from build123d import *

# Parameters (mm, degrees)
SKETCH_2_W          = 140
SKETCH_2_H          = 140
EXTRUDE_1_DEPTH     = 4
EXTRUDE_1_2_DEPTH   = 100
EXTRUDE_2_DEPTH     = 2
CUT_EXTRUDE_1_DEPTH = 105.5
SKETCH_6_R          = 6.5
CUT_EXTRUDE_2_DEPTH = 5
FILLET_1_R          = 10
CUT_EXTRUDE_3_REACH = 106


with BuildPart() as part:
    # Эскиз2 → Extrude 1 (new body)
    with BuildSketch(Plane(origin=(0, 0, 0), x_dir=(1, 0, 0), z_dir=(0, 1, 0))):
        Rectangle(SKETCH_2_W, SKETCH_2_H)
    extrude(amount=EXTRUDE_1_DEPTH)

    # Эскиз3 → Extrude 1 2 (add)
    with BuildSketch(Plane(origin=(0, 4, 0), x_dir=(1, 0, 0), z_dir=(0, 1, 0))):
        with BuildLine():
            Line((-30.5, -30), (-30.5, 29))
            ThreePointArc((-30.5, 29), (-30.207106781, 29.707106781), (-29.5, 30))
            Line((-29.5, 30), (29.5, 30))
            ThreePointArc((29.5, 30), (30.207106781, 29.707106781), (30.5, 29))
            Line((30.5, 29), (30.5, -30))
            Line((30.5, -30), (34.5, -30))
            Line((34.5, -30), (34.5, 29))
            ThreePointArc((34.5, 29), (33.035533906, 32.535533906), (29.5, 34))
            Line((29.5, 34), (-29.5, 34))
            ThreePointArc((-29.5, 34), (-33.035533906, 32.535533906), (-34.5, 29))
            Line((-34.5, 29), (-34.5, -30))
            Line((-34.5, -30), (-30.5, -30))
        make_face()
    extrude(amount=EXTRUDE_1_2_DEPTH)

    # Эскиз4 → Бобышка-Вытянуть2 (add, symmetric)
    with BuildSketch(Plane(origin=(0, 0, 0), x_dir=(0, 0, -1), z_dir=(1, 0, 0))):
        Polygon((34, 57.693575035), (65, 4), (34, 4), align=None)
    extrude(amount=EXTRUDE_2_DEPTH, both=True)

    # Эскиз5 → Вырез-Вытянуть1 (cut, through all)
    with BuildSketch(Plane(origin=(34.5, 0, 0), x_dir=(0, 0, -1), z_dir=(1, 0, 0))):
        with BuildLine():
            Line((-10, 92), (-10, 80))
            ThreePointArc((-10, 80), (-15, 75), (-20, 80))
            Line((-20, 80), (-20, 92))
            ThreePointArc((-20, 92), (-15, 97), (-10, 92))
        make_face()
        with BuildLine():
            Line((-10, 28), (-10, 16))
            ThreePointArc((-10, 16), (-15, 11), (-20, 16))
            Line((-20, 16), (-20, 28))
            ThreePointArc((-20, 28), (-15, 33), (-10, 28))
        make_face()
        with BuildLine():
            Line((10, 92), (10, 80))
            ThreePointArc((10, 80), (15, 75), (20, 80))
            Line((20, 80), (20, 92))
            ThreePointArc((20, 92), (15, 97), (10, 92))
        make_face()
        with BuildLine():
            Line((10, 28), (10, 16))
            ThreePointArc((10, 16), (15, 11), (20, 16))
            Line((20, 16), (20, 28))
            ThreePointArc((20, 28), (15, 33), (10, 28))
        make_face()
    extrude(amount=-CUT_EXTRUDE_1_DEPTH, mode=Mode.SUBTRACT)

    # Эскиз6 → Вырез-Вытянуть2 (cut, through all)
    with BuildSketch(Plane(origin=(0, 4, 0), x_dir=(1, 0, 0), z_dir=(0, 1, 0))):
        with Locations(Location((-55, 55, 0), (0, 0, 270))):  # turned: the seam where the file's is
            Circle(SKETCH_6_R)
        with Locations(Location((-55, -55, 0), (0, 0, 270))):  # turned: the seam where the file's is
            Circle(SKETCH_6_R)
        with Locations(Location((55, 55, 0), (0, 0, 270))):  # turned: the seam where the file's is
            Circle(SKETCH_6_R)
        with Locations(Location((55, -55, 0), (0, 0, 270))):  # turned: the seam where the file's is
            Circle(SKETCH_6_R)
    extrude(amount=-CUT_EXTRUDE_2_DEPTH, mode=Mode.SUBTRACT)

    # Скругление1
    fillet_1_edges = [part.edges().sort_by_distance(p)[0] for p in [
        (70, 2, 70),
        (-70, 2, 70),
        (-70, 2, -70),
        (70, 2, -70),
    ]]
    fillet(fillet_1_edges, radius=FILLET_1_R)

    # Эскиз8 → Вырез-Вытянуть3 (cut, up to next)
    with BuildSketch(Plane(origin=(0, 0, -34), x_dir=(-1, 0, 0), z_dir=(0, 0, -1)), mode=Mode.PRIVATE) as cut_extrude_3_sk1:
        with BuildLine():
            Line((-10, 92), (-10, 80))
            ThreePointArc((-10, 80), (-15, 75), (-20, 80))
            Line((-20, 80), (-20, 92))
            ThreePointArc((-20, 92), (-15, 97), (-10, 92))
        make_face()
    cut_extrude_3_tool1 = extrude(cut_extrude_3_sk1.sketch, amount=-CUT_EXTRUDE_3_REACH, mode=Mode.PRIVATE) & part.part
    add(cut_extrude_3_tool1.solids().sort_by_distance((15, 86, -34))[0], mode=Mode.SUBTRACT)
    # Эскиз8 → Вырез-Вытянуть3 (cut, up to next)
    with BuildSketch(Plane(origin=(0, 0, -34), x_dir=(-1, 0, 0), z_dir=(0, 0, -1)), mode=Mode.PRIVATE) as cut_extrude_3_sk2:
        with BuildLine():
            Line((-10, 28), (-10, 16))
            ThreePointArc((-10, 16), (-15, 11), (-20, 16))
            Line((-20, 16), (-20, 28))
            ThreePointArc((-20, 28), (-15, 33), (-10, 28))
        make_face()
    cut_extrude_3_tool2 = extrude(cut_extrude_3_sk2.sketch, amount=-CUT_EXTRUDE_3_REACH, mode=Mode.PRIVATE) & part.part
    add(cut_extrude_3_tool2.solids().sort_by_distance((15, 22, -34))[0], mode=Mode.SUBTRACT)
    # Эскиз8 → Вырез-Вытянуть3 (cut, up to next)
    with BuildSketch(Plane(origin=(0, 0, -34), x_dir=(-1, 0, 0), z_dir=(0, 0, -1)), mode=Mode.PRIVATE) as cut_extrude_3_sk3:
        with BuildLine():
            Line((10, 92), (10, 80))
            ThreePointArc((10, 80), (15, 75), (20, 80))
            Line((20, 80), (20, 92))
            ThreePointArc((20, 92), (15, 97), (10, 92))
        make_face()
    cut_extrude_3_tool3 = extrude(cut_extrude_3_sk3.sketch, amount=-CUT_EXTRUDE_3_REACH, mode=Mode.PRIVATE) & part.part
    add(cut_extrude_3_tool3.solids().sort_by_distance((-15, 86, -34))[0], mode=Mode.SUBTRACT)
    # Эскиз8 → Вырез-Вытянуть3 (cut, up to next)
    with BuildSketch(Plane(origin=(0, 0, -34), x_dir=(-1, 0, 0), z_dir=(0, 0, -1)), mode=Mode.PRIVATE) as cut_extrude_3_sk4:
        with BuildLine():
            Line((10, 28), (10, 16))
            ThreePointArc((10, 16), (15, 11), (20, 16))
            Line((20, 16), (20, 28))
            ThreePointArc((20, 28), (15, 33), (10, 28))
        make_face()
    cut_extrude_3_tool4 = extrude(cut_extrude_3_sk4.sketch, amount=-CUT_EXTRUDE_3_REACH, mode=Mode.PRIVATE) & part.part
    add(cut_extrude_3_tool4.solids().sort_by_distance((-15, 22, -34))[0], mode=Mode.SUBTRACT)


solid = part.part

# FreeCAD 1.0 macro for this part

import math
import FreeCAD as App
import Part
import Sketcher
Q = App.Units.Quantity


def edges_at(feature, points):
    """Names of the edges that pass closest to the given points."""
    edges = feature.Shape.Edges
    near = lambda p: min(range(len(edges)), key=lambda i: edges[i].distToShape(Part.Vertex(*p))[0])
    return sorted({f"Edge{near(p) + 1}" for p in points})

doc = App.newDocument("Part")
params = doc.addObject("Spreadsheet::Sheet", "Params")
for row, (alias, value) in enumerate([
    ("sketch1_width", "140 mm"),
    ("pad1_length", "4 mm"),
    ("sketch2_radius", "1 mm"),
    ("sketch2_radius2", "5 mm"),
    ("sketch2_width", "59 mm"),
    ("pad2_length", "100 mm"),
    ("sketch3_height", "31 mm"),
    ("pad3_length", "4 mm"),
    ("sketch4_radius", "5 mm"),
    ("sketch4_width", "12 mm"),
    ("sketch5_diameter", "13 mm"),
    ("fillet_radius", "10 mm"),
    ("sketch6_radius", "5 mm"),
    ("sketch6_height", "12 mm"),
    ("sketch7_radius", "5 mm"),
    ("sketch7_height", "12 mm"),
    ("sketch8_radius", "5 mm"),
    ("sketch8_height", "12 mm"),
    ("sketch9_radius", "5 mm"),
    ("sketch9_height", "12 mm"),
], start=1):
    params.set(f"A{row}", alias)
    params.set(f"B{row}", "=" + value)
    params.setAlias(f"B{row}", alias)

body = doc.addObject("PartDesign::Body", "Body")

sketch1 = body.newObject("Sketcher::SketchObject", "Sketch")
sketch1.AttachmentSupport = (doc.getObject("XZ_Plane"), [""])
sketch1.MapMode = "FlatFace"
sketch1.addGeometry(Part.LineSegment(App.Vector(-70, -70, 0), App.Vector(-70, 70, 0)), False)
sketch1.addGeometry(Part.LineSegment(App.Vector(-70, 70, 0), App.Vector(70, 70, 0)), False)
sketch1.addGeometry(Part.LineSegment(App.Vector(70, 70, 0), App.Vector(70, -70, 0)), False)
sketch1.addGeometry(Part.LineSegment(App.Vector(70, -70, 0), App.Vector(-70, -70, 0)), False)
sketch1.addConstraint(Sketcher.Constraint("Coincident", 0, 2, 1, 1))
sketch1.addConstraint(Sketcher.Constraint("Coincident", 1, 2, 2, 1))
sketch1.addConstraint(Sketcher.Constraint("Coincident", 2, 2, 3, 1))
sketch1.addConstraint(Sketcher.Constraint("Coincident", 3, 2, 0, 1))
sketch1.addConstraint(Sketcher.Constraint("Vertical", 0))
sketch1.addConstraint(Sketcher.Constraint("Horizontal", 1))
sketch1.addConstraint(Sketcher.Constraint("Vertical", 2))
sketch1.addConstraint(Sketcher.Constraint("Horizontal", 3))
sketch1.addConstraint(Sketcher.Constraint("Symmetric", 0, 2, 2, 2, -1, 1))
sketch1.addConstraint(Sketcher.Constraint("Equal", 3, 0))
sketch1.addConstraint(Sketcher.Constraint("DistanceX", 1, 1, 1, 2, 140.0))
sketch1.setExpression("Constraints[10]", "Params.sketch1_width")
pad1 = body.newObject("PartDesign::Pad", "Pad")
pad1.Profile = sketch1
pad1.setExpression("Length", "Params.pad1_length")
pad1.Reversed = True

sketch2 = body.newObject("Sketcher::SketchObject", "Sketch001")
sketch2.AttachmentSupport = (doc.getObject("XZ_Plane"), [""])
sketch2.MapMode = "FlatFace"
sketch2.AttachmentOffset = App.Placement(App.Vector(0, 0, -4), App.Rotation())
sketch2.addGeometry(Part.LineSegment(App.Vector(-30.5, 30, 0), App.Vector(-30.5, -29, 0)), False)
sketch2.addGeometry(Part.ArcOfCircle(Part.Circle(App.Vector(-29.5, -29, 0), App.Vector(0, 0, 1), 1), math.radians(-180), math.radians(-90)), False)
sketch2.addGeometry(Part.LineSegment(App.Vector(-29.5, -30, 0), App.Vector(29.5, -30, 0)), False)
sketch2.addGeometry(Part.ArcOfCircle(Part.Circle(App.Vector(29.5, -29, 0), App.Vector(0, 0, 1), 1), math.radians(-90), math.radians(0)), False)
sketch2.addGeometry(Part.LineSegment(App.Vector(30.5, -29, 0), App.Vector(30.5, 30, 0)), False)
sketch2.addGeometry(Part.LineSegment(App.Vector(30.5, 30, 0), App.Vector(34.5, 30, 0)), False)
sketch2.addGeometry(Part.LineSegment(App.Vector(34.5, 30, 0), App.Vector(34.5, -29, 0)), False)
sketch2.addGeometry(Part.ArcOfCircle(Part.Circle(App.Vector(29.5, -29, 0), App.Vector(0, 0, 1), 5), math.radians(-90), math.radians(0)), False)
sketch2.addGeometry(Part.LineSegment(App.Vector(29.5, -34, 0), App.Vector(-29.5, -34, 0)), False)
sketch2.addGeometry(Part.ArcOfCircle(Part.Circle(App.Vector(-29.5, -29, 0), App.Vector(0, 0, 1), 5), math.radians(180), math.radians(270)), False)
sketch2.addGeometry(Part.LineSegment(App.Vector(-34.5, -29, 0), App.Vector(-34.5, 30, 0)), False)
sketch2.addGeometry(Part.LineSegment(App.Vector(-34.5, 30, 0), App.Vector(-30.5, 30, 0)), False)
sketch2.addConstraint(Sketcher.Constraint("Tangent", 0, 2, 1, 1))
sketch2.addConstraint(Sketcher.Constraint("Tangent", 1, 2, 2, 1))
sketch2.addConstraint(Sketcher.Constraint("Tangent", 2, 2, 3, 1))
sketch2.addConstraint(Sketcher.Constraint("Tangent", 3, 2, 4, 1))
sketch2.addConstraint(Sketcher.Constraint("Coincident", 4, 2, 5, 1))
sketch2.addConstraint(Sketcher.Constraint("Coincident", 5, 2, 6, 1))
sketch2.addConstraint(Sketcher.Constraint("Tangent", 6, 2, 7, 2))
sketch2.addConstraint(Sketcher.Constraint("Tangent", 7, 1, 8, 1))
sketch2.addConstraint(Sketcher.Constraint("Tangent", 8, 2, 9, 2))
sketch2.addConstraint(Sketcher.Constraint("Tangent", 9, 1, 10, 1))
sketch2.addConstraint(Sketcher.Constraint("Coincident", 10, 2, 11, 1))
sketch2.addConstraint(Sketcher.Constraint("Coincident", 11, 2, 0, 1))
sketch2.addConstraint(Sketcher.Constraint("Vertical", 0))
sketch2.addConstraint(Sketcher.Constraint("Horizontal", 2))
sketch2.addConstraint(Sketcher.Constraint("Vertical", 4))
sketch2.addConstraint(Sketcher.Constraint("Horizontal", 5))
sketch2.addConstraint(Sketcher.Constraint("Vertical", 6))
sketch2.addConstraint(Sketcher.Constraint("Horizontal", 8))
sketch2.addConstraint(Sketcher.Constraint("Vertical", 10))
sketch2.addConstraint(Sketcher.Constraint("Horizontal", 11))
sketch2.addConstraint(Sketcher.Constraint("Coincident", 7, 3, 3, 3))
sketch2.addConstraint(Sketcher.Constraint("Coincident", 9, 3, 1, 3))
sketch2.addConstraint(Sketcher.Constraint("Equal", 1, 3))
sketch2.addConstraint(Sketcher.Constraint("Symmetric", 5, 2, 10, 2, -2))
sketch2.addConstraint(Sketcher.Constraint("Equal", 8, 0))
sketch2.addConstraint(Sketcher.Constraint("Radius", 1, 1.0))
sketch2.addConstraint(Sketcher.Constraint("Radius", 7, 5.0))
sketch2.addConstraint(Sketcher.Constraint("DistanceX", 2, 1, 2, 2, 59.0))
sketch2.addConstraint(Sketcher.Constraint("DistanceY", 1, 3, -1, 1, 29.0))
sketch2.setExpression("Constraints[25]", "Params.sketch2_radius")
sketch2.setExpression("Constraints[26]", "Params.sketch2_radius2")
sketch2.setExpression("Constraints[27]", "Params.sketch2_width")
pad2 = body.newObject("PartDesign::Pad", "Pad001")
pad2.Profile = sketch2
pad2.setExpression("Length", "Params.pad2_length")
pad2.Reversed = True

sketch3 = body.newObject("Sketcher::SketchObject", "Sketch002")
sketch3.AttachmentSupport = (doc.getObject("YZ_Plane"), [""])
sketch3.MapMode = "FlatFace"
sketch3.addGeometry(Part.LineSegment(App.Vector(4, -65, 0), App.Vector(58, -34, 0)), False)
sketch3.addGeometry(Part.LineSegment(App.Vector(58, -34, 0), App.Vector(4, -34, 0)), False)
sketch3.addGeometry(Part.LineSegment(App.Vector(4, -34, 0), App.Vector(4, -65, 0)), False)
sketch3.addConstraint(Sketcher.Constraint("Coincident", 0, 2, 1, 1))
sketch3.addConstraint(Sketcher.Constraint("Coincident", 1, 2, 2, 1))
sketch3.addConstraint(Sketcher.Constraint("Coincident", 2, 2, 0, 1))
sketch3.addConstraint(Sketcher.Constraint("Horizontal", 1))
sketch3.addConstraint(Sketcher.Constraint("Vertical", 2))
sketch3.addConstraint(Sketcher.Constraint("DistanceY", 2, 2, 2, 1, 31.0))
sketch3.addConstraint(Sketcher.Constraint("Angle", 0, Q("30 deg")))
sketch3.addConstraint(Sketcher.Constraint("DistanceY", 0, 2, -1, 1, 34.0))
sketch3.addConstraint(Sketcher.Constraint("DistanceX", -1, 1, 1, 2, 4.0))
sketch3.setExpression("Constraints[5]", "Params.sketch3_height")
pad3 = body.newObject("PartDesign::Pad", "Pad002")
pad3.Profile = sketch3
pad3.setExpression("Length", "Params.pad3_length")
pad3.Midplane = True

sketch4 = body.newObject("Sketcher::SketchObject", "Sketch003")
sketch4.AttachmentSupport = (doc.getObject("YZ_Plane"), [""])
sketch4.MapMode = "FlatFace"
sketch4.AttachmentOffset = App.Placement(App.Vector(0, 0, 34.5), App.Rotation())
sketch4.addGeometry(Part.LineSegment(App.Vector(80, 10, 0), App.Vector(92, 10, 0)), False)
sketch4.addGeometry(Part.ArcOfCircle(Part.Circle(App.Vector(92, 15, 0), App.Vector(0, 0, 1), 5), math.radians(-90), math.radians(90)), False)
sketch4.addGeometry(Part.LineSegment(App.Vector(92, 20, 0), App.Vector(80, 20, 0)), False)
sketch4.addGeometry(Part.ArcOfCircle(Part.Circle(App.Vector(80, 15, 0), App.Vector(0, 0, 1), 5), math.radians(90), math.radians(270)), False)
sketch4.addGeometry(Part.LineSegment(App.Vector(16, 10, 0), App.Vector(28, 10, 0)), False)
sketch4.addGeometry(Part.ArcOfCircle(Part.Circle(App.Vector(28, 15, 0), App.Vector(0, 0, 1), 5), math.radians(-90), math.radians(90)), False)
sketch4.addGeometry(Part.LineSegment(App.Vector(28, 20, 0), App.Vector(16, 20, 0)), False)
sketch4.addGeometry(Part.ArcOfCircle(Part.Circle(App.Vector(16, 15, 0), App.Vector(0, 0, 1), 5), math.radians(90), math.radians(270)), False)
sketch4.addGeometry(Part.LineSegment(App.Vector(92, -10, 0), App.Vector(80, -10, 0)), False)
sketch4.addGeometry(Part.ArcOfCircle(Part.Circle(App.Vector(80, -15, 0), App.Vector(0, 0, 1), 5), math.radians(90), math.radians(270)), False)
sketch4.addGeometry(Part.LineSegment(App.Vector(80, -20, 0), App.Vector(92, -20, 0)), False)
sketch4.addGeometry(Part.ArcOfCircle(Part.Circle(App.Vector(92, -15, 0), App.Vector(0, 0, 1), 5), math.radians(-90), math.radians(90)), False)
sketch4.addGeometry(Part.LineSegment(App.Vector(28, -10, 0), App.Vector(16, -10, 0)), False)
sketch4.addGeometry(Part.ArcOfCircle(Part.Circle(App.Vector(16, -15, 0), App.Vector(0, 0, 1), 5), math.radians(90), math.radians(270)), False)
sketch4.addGeometry(Part.LineSegment(App.Vector(16, -20, 0), App.Vector(28, -20, 0)), False)
sketch4.addGeometry(Part.ArcOfCircle(Part.Circle(App.Vector(28, -15, 0), App.Vector(0, 0, 1), 5), math.radians(-90), math.radians(90)), False)
sketch4.addConstraint(Sketcher.Constraint("Tangent", 0, 2, 1, 1))
sketch4.addConstraint(Sketcher.Constraint("Tangent", 1, 2, 2, 1))
sketch4.addConstraint(Sketcher.Constraint("Tangent", 2, 2, 3, 1))
sketch4.addConstraint(Sketcher.Constraint("Tangent", 3, 2, 0, 1))
sketch4.addConstraint(Sketcher.Constraint("Tangent", 4, 2, 5, 1))
sketch4.addConstraint(Sketcher.Constraint("Tangent", 5, 2, 6, 1))
sketch4.addConstraint(Sketcher.Constraint("Tangent", 6, 2, 7, 1))
sketch4.addConstraint(Sketcher.Constraint("Tangent", 7, 2, 4, 1))
sketch4.addConstraint(Sketcher.Constraint("Tangent", 8, 2, 9, 1))
sketch4.addConstraint(Sketcher.Constraint("Tangent", 9, 2, 10, 1))
sketch4.addConstraint(Sketcher.Constraint("Tangent", 10, 2, 11, 1))
sketch4.addConstraint(Sketcher.Constraint("Tangent", 11, 2, 8, 1))
sketch4.addConstraint(Sketcher.Constraint("Tangent", 12, 2, 13, 1))
sketch4.addConstraint(Sketcher.Constraint("Tangent", 13, 2, 14, 1))
sketch4.addConstraint(Sketcher.Constraint("Tangent", 14, 2, 15, 1))
sketch4.addConstraint(Sketcher.Constraint("Tangent", 15, 2, 12, 1))
sketch4.addConstraint(Sketcher.Constraint("Horizontal", 0))
sketch4.addConstraint(Sketcher.Constraint("Horizontal", 2))
sketch4.addConstraint(Sketcher.Constraint("Horizontal", 4))
sketch4.addConstraint(Sketcher.Constraint("Horizontal", 6))
sketch4.addConstraint(Sketcher.Constraint("Horizontal", 8))
sketch4.addConstraint(Sketcher.Constraint("Horizontal", 10))
sketch4.addConstraint(Sketcher.Constraint("Horizontal", 12))
sketch4.addConstraint(Sketcher.Constraint("Horizontal", 14))
sketch4.addConstraint(Sketcher.Constraint("Equal", 3, 5))
sketch4.addConstraint(Sketcher.Constraint("Equal", 7, 9))
sketch4.addConstraint(Sketcher.Constraint("Equal", 11, 13))
sketch4.addConstraint(Sketcher.Constraint("Symmetric", 3, 3, 9, 3, -1))
sketch4.addConstraint(Sketcher.Constraint("Symmetric", 7, 3, 13, 3, -1))
sketch4.addConstraint(Sketcher.Constraint("Horizontal", 3, 3, 5, 3))
sketch4.addConstraint(Sketcher.Constraint("Vertical", 1, 3, 11, 3))
sketch4.addConstraint(Sketcher.Constraint("Vertical", 5, 3, 15, 3))
sketch4.addConstraint(Sketcher.Constraint("Equal", 2, 4))
sketch4.addConstraint(Sketcher.Constraint("Radius", 1, 5.0))
sketch4.addConstraint(Sketcher.Constraint("DistanceX", 0, 1, 0, 2, 12.0))
sketch4.addConstraint(Sketcher.Constraint("DistanceX", -1, 1, 1, 3, 92.0))
sketch4.addConstraint(Sketcher.Constraint("DistanceY", -1, 1, 1, 3, 15.0))
sketch4.addConstraint(Sketcher.Constraint("DistanceX", -1, 1, 5, 3, 28.0))
sketch4.setExpression("Constraints[33]", "Params.sketch4_radius")
sketch4.setExpression("Constraints[34]", "Params.sketch4_width")
pocket1 = body.newObject("PartDesign::Pocket", "Pocket")
pocket1.Profile = sketch4
pocket1.Type = "ThroughAll"

sketch5 = body.newObject("Sketcher::SketchObject", "Sketch004")
sketch5.AttachmentSupport = (doc.getObject("XZ_Plane"), [""])
sketch5.MapMode = "FlatFace"
sketch5.AttachmentOffset = App.Placement(App.Vector(0, 0, -4), App.Rotation())
sketch5.addGeometry(Part.Circle(App.Vector(-55, -55, 0), App.Vector(0, 0, 1), 6), False)
sketch5.addGeometry(Part.Circle(App.Vector(-55, 55, 0), App.Vector(0, 0, 1), 6), False)
sketch5.addGeometry(Part.Circle(App.Vector(55, -55, 0), App.Vector(0, 0, 1), 6), False)
sketch5.addGeometry(Part.Circle(App.Vector(55, 55, 0), App.Vector(0, 0, 1), 6), False)
sketch5.addConstraint(Sketcher.Constraint("Equal", 0, 1))
sketch5.addConstraint(Sketcher.Constraint("Equal", 1, 2))
sketch5.addConstraint(Sketcher.Constraint("Equal", 2, 3))
sketch5.addConstraint(Sketcher.Constraint("Symmetric", 1, 3, 2, 3, -1, 1))
sketch5.addConstraint(Sketcher.Constraint("Symmetric", 0, 3, 3, 3, -1, 1))
sketch5.addConstraint(Sketcher.Constraint("Symmetric", 0, 3, 2, 3, -2))
sketch5.addConstraint(Sketcher.Constraint("Diameter", 0, 13.0))
sketch5.addConstraint(Sketcher.Constraint("DistanceX", 0, 3, -1, 1, 55.0))
sketch5.addConstraint(Sketcher.Constraint("DistanceY", 0, 3, -1, 1, 55.0))
sketch5.setExpression("Constraints[6]", "Params.sketch5_diameter")
pocket2 = body.newObject("PartDesign::Pocket", "Pocket001")
pocket2.Profile = sketch5
pocket2.Type = "ThroughAll"
pocket2.Reversed = True
doc.recompute()

fillet = body.newObject("PartDesign::Fillet", "Fillet")
fillet.Base = (pocket2, edges_at(pocket2, [
    (70, 2, 70),
    (-70, 2, 70),
    (-70, 2, -70),
    (70, 2, -70),
]))
fillet.setExpression("Radius", "Params.fillet_radius")

sketch6 = body.newObject("Sketcher::SketchObject", "Sketch005")
sketch6.AttachmentSupport = (doc.getObject("XY_Plane"), [""])
sketch6.MapMode = "FlatFace"
sketch6.AttachmentOffset = App.Placement(App.Vector(0, 0, -34), App.Rotation())
sketch6.addGeometry(Part.LineSegment(App.Vector(10, 80, 0), App.Vector(10, 92, 0)), False)
sketch6.addGeometry(Part.ArcOfCircle(Part.Circle(App.Vector(15, 92, 0), App.Vector(0, 0, 1), 5), math.radians(0), math.radians(180)), False)
sketch6.addGeometry(Part.LineSegment(App.Vector(20, 92, 0), App.Vector(20, 80, 0)), False)
sketch6.addGeometry(Part.ArcOfCircle(Part.Circle(App.Vector(15, 80, 0), App.Vector(0, 0, 1), 5), math.radians(180), math.radians(360)), False)
sketch6.addConstraint(Sketcher.Constraint("Tangent", 0, 2, 1, 2))
sketch6.addConstraint(Sketcher.Constraint("Tangent", 1, 1, 2, 1))
sketch6.addConstraint(Sketcher.Constraint("Tangent", 2, 2, 3, 2))
sketch6.addConstraint(Sketcher.Constraint("Tangent", 3, 1, 0, 1))
sketch6.addConstraint(Sketcher.Constraint("Vertical", 0))
sketch6.addConstraint(Sketcher.Constraint("Vertical", 2))
sketch6.addConstraint(Sketcher.Constraint("Radius", 1, 5.0))
sketch6.addConstraint(Sketcher.Constraint("DistanceY", 0, 1, 0, 2, 12.0))
sketch6.addConstraint(Sketcher.Constraint("DistanceX", -1, 1, 1, 3, 15.0))
sketch6.addConstraint(Sketcher.Constraint("DistanceY", -1, 1, 1, 3, 92.0))
sketch6.setExpression("Constraints[6]", "Params.sketch6_radius")
sketch6.setExpression("Constraints[7]", "Params.sketch6_height")
pocket3 = body.newObject("PartDesign::Pocket", "Pocket002")
pocket3.Profile = sketch6
pocket3.Type = "UpToFirst"
pocket3.Reversed = True

sketch7 = body.newObject("Sketcher::SketchObject", "Sketch006")
sketch7.AttachmentSupport = (doc.getObject("XY_Plane"), [""])
sketch7.MapMode = "FlatFace"
sketch7.AttachmentOffset = App.Placement(App.Vector(0, 0, -34), App.Rotation())
sketch7.addGeometry(Part.LineSegment(App.Vector(10, 16, 0), App.Vector(10, 28, 0)), False)
sketch7.addGeometry(Part.ArcOfCircle(Part.Circle(App.Vector(15, 28, 0), App.Vector(0, 0, 1), 5), math.radians(0), math.radians(180)), False)
sketch7.addGeometry(Part.LineSegment(App.Vector(20, 28, 0), App.Vector(20, 16, 0)), False)
sketch7.addGeometry(Part.ArcOfCircle(Part.Circle(App.Vector(15, 16, 0), App.Vector(0, 0, 1), 5), math.radians(180), math.radians(360)), False)
sketch7.addConstraint(Sketcher.Constraint("Tangent", 0, 2, 1, 2))
sketch7.addConstraint(Sketcher.Constraint("Tangent", 1, 1, 2, 1))
sketch7.addConstraint(Sketcher.Constraint("Tangent", 2, 2, 3, 2))
sketch7.addConstraint(Sketcher.Constraint("Tangent", 3, 1, 0, 1))
sketch7.addConstraint(Sketcher.Constraint("Vertical", 0))
sketch7.addConstraint(Sketcher.Constraint("Vertical", 2))
sketch7.addConstraint(Sketcher.Constraint("Radius", 1, 5.0))
sketch7.addConstraint(Sketcher.Constraint("DistanceY", 0, 1, 0, 2, 12.0))
sketch7.addConstraint(Sketcher.Constraint("DistanceX", -1, 1, 1, 3, 15.0))
sketch7.addConstraint(Sketcher.Constraint("DistanceY", -1, 1, 1, 3, 28.0))
sketch7.setExpression("Constraints[6]", "Params.sketch7_radius")
sketch7.setExpression("Constraints[7]", "Params.sketch7_height")
pocket4 = body.newObject("PartDesign::Pocket", "Pocket003")
pocket4.Profile = sketch7
pocket4.Type = "UpToFirst"
pocket4.Reversed = True

sketch8 = body.newObject("Sketcher::SketchObject", "Sketch007")
sketch8.AttachmentSupport = (doc.getObject("XY_Plane"), [""])
sketch8.MapMode = "FlatFace"
sketch8.AttachmentOffset = App.Placement(App.Vector(0, 0, -34), App.Rotation())
sketch8.addGeometry(Part.LineSegment(App.Vector(-10, 92, 0), App.Vector(-10, 80, 0)), False)
sketch8.addGeometry(Part.ArcOfCircle(Part.Circle(App.Vector(-15, 80, 0), App.Vector(0, 0, 1), 5), math.radians(180), math.radians(360)), False)
sketch8.addGeometry(Part.LineSegment(App.Vector(-20, 80, 0), App.Vector(-20, 92, 0)), False)
sketch8.addGeometry(Part.ArcOfCircle(Part.Circle(App.Vector(-15, 92, 0), App.Vector(0, 0, 1), 5), math.radians(0), math.radians(180)), False)
sketch8.addConstraint(Sketcher.Constraint("Tangent", 0, 2, 1, 2))
sketch8.addConstraint(Sketcher.Constraint("Tangent", 1, 1, 2, 1))
sketch8.addConstraint(Sketcher.Constraint("Tangent", 2, 2, 3, 2))
sketch8.addConstraint(Sketcher.Constraint("Tangent", 3, 1, 0, 1))
sketch8.addConstraint(Sketcher.Constraint("Vertical", 0))
sketch8.addConstraint(Sketcher.Constraint("Vertical", 2))
sketch8.addConstraint(Sketcher.Constraint("Radius", 1, 5.0))
sketch8.addConstraint(Sketcher.Constraint("DistanceY", 0, 2, 0, 1, 12.0))
sketch8.addConstraint(Sketcher.Constraint("DistanceX", 1, 3, -1, 1, 15.0))
sketch8.addConstraint(Sketcher.Constraint("DistanceY", -1, 1, 1, 3, 80.0))
sketch8.setExpression("Constraints[6]", "Params.sketch8_radius")
sketch8.setExpression("Constraints[7]", "Params.sketch8_height")
pocket5 = body.newObject("PartDesign::Pocket", "Pocket004")
pocket5.Profile = sketch8
pocket5.Type = "UpToFirst"
pocket5.Reversed = True

sketch9 = body.newObject("Sketcher::SketchObject", "Sketch008")
sketch9.AttachmentSupport = (doc.getObject("XY_Plane"), [""])
sketch9.MapMode = "FlatFace"
sketch9.AttachmentOffset = App.Placement(App.Vector(0, 0, -34), App.Rotation())
sketch9.addGeometry(Part.LineSegment(App.Vector(-10, 28, 0), App.Vector(-10, 16, 0)), False)
sketch9.addGeometry(Part.ArcOfCircle(Part.Circle(App.Vector(-15, 16, 0), App.Vector(0, 0, 1), 5), math.radians(180), math.radians(360)), False)
sketch9.addGeometry(Part.LineSegment(App.Vector(-20, 16, 0), App.Vector(-20, 28, 0)), False)
sketch9.addGeometry(Part.ArcOfCircle(Part.Circle(App.Vector(-15, 28, 0), App.Vector(0, 0, 1), 5), math.radians(0), math.radians(180)), False)
sketch9.addConstraint(Sketcher.Constraint("Tangent", 0, 2, 1, 2))
sketch9.addConstraint(Sketcher.Constraint("Tangent", 1, 1, 2, 1))
sketch9.addConstraint(Sketcher.Constraint("Tangent", 2, 2, 3, 2))
sketch9.addConstraint(Sketcher.Constraint("Tangent", 3, 1, 0, 1))
sketch9.addConstraint(Sketcher.Constraint("Vertical", 0))
sketch9.addConstraint(Sketcher.Constraint("Vertical", 2))
sketch9.addConstraint(Sketcher.Constraint("Radius", 1, 5.0))
sketch9.addConstraint(Sketcher.Constraint("DistanceY", 0, 2, 0, 1, 12.0))
sketch9.addConstraint(Sketcher.Constraint("DistanceX", 1, 3, -1, 1, 15.0))
sketch9.addConstraint(Sketcher.Constraint("DistanceY", -1, 1, 1, 3, 16.0))
sketch9.setExpression("Constraints[6]", "Params.sketch9_radius")
sketch9.setExpression("Constraints[7]", "Params.sketch9_height")
pocket6 = body.newObject("PartDesign::Pocket", "Pocket005")
pocket6.Profile = sketch9
pocket6.Type = "UpToFirst"
pocket6.Reversed = True

doc.recompute()
